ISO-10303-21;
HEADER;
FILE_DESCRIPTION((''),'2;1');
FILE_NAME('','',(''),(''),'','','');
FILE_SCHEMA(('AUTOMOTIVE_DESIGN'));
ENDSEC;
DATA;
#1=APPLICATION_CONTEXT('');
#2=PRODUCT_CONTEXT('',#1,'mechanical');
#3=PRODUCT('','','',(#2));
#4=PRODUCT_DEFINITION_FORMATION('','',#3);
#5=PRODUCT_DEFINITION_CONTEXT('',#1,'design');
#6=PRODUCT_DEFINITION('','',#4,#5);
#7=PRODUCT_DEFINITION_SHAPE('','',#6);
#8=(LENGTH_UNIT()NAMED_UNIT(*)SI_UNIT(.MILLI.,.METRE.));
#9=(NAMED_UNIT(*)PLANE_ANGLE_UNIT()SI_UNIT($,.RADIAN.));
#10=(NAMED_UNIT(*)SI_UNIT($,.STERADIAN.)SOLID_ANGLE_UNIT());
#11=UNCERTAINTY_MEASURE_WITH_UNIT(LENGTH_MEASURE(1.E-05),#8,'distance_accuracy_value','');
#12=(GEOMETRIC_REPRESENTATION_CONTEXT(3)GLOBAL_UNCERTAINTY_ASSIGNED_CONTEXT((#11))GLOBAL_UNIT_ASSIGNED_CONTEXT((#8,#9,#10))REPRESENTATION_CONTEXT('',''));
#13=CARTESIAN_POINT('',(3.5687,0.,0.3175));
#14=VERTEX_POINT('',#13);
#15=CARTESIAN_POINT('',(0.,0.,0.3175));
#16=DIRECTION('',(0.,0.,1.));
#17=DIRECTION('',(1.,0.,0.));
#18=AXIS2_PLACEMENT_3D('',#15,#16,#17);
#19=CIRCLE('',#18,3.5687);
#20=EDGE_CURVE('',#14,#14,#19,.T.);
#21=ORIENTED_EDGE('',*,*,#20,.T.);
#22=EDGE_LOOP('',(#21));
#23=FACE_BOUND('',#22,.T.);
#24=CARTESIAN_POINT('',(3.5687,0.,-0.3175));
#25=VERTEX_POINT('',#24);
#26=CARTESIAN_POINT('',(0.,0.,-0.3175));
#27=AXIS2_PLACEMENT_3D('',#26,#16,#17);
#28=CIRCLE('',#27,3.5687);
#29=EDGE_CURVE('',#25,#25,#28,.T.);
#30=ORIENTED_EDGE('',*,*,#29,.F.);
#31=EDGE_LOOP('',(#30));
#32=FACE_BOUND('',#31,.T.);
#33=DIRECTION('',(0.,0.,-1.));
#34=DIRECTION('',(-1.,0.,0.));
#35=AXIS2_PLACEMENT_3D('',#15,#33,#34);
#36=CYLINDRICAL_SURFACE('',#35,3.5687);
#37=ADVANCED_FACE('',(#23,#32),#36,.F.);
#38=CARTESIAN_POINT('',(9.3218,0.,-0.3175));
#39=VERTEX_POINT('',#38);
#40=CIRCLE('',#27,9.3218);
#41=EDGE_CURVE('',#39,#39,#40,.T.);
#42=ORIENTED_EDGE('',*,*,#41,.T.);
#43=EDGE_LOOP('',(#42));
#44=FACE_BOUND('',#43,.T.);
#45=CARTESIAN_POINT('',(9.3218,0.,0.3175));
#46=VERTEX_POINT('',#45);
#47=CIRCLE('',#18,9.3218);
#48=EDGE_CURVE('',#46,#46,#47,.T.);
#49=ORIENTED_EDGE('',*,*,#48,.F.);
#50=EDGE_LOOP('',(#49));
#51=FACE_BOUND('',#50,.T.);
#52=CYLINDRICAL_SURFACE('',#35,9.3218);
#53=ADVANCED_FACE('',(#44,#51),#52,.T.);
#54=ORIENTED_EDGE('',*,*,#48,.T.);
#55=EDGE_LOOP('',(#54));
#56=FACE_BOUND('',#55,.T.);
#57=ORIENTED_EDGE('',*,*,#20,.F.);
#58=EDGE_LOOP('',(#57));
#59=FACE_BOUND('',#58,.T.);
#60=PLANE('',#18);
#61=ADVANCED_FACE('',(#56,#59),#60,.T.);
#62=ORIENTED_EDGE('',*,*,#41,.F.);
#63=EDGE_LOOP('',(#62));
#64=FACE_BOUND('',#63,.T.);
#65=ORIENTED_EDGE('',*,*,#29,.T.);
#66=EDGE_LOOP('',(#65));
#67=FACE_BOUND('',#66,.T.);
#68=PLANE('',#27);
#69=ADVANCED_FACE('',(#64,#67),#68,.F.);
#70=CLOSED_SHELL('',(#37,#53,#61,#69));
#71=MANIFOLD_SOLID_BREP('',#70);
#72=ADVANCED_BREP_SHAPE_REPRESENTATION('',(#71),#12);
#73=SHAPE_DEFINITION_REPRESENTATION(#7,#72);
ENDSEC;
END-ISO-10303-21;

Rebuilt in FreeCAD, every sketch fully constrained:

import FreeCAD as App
import Part
import Sketcher
from FreeCAD import Vector
Q = App.Units.Quantity

doc = App.newDocument("Part")
body = doc.addObject("PartDesign::Body", "Body")

sketch1 = body.newObject("Sketcher::SketchObject", "Sketch")
sketch1.AttachmentSupport = (doc.getObject("XY_Plane"), [""])
sketch1.MapMode = "FlatFace"
sketch1.addGeometry([
    Part.Circle(Vector(0, 0, 0), Vector(0, 0, 1), 9.3),
    Part.Circle(Vector(0, 0, 0), Vector(0, 0, 1), 3.6),
], False)
sketch1.addConstraint([
    Sketcher.Constraint("Coincident", 0, 3, -1, 1),
    Sketcher.Constraint("Coincident", 1, 3, -1, 1),
    Sketcher.Constraint("Diameter", 0, Q("0.734 in")),
    Sketcher.Constraint("Diameter", 1, Q("0.281 in")),
])
pad1 = body.newObject("PartDesign::Pad", "Pad")
pad1.Profile = sketch1
pad1.Type = "TwoLengths"
pad1.Length = Q("0.0125 in")
pad1.Length2 = Q("0.0125 in")

doc.recompute()
